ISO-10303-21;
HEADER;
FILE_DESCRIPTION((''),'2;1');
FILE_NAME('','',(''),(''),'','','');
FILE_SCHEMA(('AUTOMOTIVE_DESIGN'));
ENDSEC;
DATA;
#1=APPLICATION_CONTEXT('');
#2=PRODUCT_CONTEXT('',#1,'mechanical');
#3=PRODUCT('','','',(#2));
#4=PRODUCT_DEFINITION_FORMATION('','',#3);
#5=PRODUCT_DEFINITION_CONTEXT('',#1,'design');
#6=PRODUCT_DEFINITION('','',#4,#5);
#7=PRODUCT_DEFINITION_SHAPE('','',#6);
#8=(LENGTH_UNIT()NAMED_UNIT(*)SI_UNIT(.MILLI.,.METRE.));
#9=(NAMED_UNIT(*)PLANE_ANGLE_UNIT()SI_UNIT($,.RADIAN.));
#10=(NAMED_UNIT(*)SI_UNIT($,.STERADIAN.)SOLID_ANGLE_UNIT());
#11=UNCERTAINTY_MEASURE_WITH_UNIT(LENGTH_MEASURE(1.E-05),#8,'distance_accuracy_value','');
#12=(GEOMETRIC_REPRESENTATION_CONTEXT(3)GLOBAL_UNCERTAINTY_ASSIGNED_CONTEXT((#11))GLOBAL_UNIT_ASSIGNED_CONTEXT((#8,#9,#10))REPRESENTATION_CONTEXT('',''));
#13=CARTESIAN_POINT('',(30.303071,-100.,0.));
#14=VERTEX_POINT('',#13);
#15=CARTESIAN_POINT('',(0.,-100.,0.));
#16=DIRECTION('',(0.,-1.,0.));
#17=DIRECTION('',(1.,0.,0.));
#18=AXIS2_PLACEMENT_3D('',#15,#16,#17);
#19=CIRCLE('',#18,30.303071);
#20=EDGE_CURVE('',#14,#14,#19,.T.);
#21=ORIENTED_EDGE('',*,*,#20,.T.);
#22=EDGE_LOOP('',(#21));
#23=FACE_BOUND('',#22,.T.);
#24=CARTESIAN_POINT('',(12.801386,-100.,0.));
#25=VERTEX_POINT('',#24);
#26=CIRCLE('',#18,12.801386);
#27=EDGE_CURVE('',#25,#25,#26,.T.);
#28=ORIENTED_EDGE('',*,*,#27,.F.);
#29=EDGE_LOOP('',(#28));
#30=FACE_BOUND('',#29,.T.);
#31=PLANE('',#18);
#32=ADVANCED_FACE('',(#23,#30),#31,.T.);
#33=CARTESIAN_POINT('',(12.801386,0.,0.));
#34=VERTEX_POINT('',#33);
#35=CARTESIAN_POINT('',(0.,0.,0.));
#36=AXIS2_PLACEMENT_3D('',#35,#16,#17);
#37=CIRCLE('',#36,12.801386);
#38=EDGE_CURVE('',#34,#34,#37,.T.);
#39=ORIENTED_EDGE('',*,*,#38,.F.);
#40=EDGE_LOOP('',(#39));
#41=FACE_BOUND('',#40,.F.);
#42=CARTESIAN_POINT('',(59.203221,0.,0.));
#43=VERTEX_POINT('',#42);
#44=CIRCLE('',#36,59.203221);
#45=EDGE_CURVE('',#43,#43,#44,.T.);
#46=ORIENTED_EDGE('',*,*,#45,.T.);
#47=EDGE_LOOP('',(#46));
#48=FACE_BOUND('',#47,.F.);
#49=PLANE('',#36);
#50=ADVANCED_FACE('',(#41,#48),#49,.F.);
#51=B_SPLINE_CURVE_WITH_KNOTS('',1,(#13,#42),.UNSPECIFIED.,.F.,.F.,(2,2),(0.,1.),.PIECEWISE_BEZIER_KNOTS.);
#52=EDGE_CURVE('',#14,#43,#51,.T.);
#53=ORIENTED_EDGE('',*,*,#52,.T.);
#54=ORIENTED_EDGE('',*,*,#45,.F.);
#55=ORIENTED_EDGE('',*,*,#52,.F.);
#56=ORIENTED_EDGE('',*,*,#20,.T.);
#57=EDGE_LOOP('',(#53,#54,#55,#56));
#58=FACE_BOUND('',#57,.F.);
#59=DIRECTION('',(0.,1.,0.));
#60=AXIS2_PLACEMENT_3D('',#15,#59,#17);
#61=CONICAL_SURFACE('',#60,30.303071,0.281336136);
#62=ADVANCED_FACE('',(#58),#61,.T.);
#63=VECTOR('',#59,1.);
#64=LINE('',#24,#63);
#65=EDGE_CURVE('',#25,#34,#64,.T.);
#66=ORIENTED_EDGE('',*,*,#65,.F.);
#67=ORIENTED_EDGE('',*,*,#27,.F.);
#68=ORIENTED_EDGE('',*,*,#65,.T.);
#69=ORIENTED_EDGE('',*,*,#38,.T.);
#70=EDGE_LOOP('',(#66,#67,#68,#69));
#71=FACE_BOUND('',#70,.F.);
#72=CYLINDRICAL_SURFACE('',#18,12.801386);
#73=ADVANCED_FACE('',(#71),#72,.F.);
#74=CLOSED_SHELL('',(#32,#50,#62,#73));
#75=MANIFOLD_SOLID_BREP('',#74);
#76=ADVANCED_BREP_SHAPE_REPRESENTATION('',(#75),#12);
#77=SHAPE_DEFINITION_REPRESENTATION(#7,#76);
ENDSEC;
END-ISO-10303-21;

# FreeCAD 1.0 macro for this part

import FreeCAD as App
import Part
import Sketcher
from FreeCAD import Vector
Q = App.Units.Quantity

doc = App.newDocument("Part")
body = doc.addObject("PartDesign::Body", "Body")

# Sketch on XZ plane
sketch1 = doc.addObject("Sketcher::SketchObject", "Sketch")
body.addObject(sketch1)
sketch1.AttachmentSupport = (doc.XZ_Plane, [""])
sketch1.MapMode = "FlatFace"
sketch1.AttachmentOffset = App.Placement(Vector(0, 0, 100), App.Rotation())
sketch1.addGeometry(Part.Circle(Vector(0, 0, 0), Vector(0, 0, 1), 30.303071), False)
sketch1.addConstraint([
    Sketcher.Constraint("Coincident", 0, 3, -1, 1),
    Sketcher.Constraint("Diameter", 0, Q("60.606142 mm")),
])

# Sketch on XZ plane
sketch2 = doc.addObject("Sketcher::SketchObject", "Sketch001")
body.addObject(sketch2)
sketch2.AttachmentSupport = (doc.XZ_Plane, [""])
sketch2.MapMode = "FlatFace"
sketch2.addGeometry(Part.Circle(Vector(0, 0, 0), Vector(0, 0, 1), 59.203221), False)
sketch2.addConstraint([
    Sketcher.Constraint("Coincident", 0, 3, -1, 1),
    Sketcher.Constraint("Diameter", 0, Q("118.406442 mm")),
])

additiveloft = doc.addObject("PartDesign::AdditiveLoft", "AdditiveLoft")
body.addObject(additiveloft)
additiveloft.Profile = sketch1
additiveloft.Sections = [sketch2]

# Sketch on XZ plane
sketch3 = doc.addObject("Sketcher::SketchObject", "Sketch002")
body.addObject(sketch3)
sketch3.AttachmentSupport = (doc.XZ_Plane, [""])
sketch3.MapMode = "FlatFace"
sketch3.AttachmentOffset = App.Placement(Vector(0, 0, 100), App.Rotation())
sketch3.addGeometry(Part.Circle(Vector(0, 0, 0), Vector(0, 0, 1), 12.801386), False)
sketch3.addConstraint([
    Sketcher.Constraint("Coincident", 0, 3, -1, 1),
    Sketcher.Constraint("Diameter", 0, Q("25.602772 mm")),
])
pocket1 = doc.addObject("PartDesign::Pocket", "Pocket")
body.addObject(pocket1)
pocket1.Profile = sketch3
pocket1.Type = "ThroughAll"

doc.recompute()
